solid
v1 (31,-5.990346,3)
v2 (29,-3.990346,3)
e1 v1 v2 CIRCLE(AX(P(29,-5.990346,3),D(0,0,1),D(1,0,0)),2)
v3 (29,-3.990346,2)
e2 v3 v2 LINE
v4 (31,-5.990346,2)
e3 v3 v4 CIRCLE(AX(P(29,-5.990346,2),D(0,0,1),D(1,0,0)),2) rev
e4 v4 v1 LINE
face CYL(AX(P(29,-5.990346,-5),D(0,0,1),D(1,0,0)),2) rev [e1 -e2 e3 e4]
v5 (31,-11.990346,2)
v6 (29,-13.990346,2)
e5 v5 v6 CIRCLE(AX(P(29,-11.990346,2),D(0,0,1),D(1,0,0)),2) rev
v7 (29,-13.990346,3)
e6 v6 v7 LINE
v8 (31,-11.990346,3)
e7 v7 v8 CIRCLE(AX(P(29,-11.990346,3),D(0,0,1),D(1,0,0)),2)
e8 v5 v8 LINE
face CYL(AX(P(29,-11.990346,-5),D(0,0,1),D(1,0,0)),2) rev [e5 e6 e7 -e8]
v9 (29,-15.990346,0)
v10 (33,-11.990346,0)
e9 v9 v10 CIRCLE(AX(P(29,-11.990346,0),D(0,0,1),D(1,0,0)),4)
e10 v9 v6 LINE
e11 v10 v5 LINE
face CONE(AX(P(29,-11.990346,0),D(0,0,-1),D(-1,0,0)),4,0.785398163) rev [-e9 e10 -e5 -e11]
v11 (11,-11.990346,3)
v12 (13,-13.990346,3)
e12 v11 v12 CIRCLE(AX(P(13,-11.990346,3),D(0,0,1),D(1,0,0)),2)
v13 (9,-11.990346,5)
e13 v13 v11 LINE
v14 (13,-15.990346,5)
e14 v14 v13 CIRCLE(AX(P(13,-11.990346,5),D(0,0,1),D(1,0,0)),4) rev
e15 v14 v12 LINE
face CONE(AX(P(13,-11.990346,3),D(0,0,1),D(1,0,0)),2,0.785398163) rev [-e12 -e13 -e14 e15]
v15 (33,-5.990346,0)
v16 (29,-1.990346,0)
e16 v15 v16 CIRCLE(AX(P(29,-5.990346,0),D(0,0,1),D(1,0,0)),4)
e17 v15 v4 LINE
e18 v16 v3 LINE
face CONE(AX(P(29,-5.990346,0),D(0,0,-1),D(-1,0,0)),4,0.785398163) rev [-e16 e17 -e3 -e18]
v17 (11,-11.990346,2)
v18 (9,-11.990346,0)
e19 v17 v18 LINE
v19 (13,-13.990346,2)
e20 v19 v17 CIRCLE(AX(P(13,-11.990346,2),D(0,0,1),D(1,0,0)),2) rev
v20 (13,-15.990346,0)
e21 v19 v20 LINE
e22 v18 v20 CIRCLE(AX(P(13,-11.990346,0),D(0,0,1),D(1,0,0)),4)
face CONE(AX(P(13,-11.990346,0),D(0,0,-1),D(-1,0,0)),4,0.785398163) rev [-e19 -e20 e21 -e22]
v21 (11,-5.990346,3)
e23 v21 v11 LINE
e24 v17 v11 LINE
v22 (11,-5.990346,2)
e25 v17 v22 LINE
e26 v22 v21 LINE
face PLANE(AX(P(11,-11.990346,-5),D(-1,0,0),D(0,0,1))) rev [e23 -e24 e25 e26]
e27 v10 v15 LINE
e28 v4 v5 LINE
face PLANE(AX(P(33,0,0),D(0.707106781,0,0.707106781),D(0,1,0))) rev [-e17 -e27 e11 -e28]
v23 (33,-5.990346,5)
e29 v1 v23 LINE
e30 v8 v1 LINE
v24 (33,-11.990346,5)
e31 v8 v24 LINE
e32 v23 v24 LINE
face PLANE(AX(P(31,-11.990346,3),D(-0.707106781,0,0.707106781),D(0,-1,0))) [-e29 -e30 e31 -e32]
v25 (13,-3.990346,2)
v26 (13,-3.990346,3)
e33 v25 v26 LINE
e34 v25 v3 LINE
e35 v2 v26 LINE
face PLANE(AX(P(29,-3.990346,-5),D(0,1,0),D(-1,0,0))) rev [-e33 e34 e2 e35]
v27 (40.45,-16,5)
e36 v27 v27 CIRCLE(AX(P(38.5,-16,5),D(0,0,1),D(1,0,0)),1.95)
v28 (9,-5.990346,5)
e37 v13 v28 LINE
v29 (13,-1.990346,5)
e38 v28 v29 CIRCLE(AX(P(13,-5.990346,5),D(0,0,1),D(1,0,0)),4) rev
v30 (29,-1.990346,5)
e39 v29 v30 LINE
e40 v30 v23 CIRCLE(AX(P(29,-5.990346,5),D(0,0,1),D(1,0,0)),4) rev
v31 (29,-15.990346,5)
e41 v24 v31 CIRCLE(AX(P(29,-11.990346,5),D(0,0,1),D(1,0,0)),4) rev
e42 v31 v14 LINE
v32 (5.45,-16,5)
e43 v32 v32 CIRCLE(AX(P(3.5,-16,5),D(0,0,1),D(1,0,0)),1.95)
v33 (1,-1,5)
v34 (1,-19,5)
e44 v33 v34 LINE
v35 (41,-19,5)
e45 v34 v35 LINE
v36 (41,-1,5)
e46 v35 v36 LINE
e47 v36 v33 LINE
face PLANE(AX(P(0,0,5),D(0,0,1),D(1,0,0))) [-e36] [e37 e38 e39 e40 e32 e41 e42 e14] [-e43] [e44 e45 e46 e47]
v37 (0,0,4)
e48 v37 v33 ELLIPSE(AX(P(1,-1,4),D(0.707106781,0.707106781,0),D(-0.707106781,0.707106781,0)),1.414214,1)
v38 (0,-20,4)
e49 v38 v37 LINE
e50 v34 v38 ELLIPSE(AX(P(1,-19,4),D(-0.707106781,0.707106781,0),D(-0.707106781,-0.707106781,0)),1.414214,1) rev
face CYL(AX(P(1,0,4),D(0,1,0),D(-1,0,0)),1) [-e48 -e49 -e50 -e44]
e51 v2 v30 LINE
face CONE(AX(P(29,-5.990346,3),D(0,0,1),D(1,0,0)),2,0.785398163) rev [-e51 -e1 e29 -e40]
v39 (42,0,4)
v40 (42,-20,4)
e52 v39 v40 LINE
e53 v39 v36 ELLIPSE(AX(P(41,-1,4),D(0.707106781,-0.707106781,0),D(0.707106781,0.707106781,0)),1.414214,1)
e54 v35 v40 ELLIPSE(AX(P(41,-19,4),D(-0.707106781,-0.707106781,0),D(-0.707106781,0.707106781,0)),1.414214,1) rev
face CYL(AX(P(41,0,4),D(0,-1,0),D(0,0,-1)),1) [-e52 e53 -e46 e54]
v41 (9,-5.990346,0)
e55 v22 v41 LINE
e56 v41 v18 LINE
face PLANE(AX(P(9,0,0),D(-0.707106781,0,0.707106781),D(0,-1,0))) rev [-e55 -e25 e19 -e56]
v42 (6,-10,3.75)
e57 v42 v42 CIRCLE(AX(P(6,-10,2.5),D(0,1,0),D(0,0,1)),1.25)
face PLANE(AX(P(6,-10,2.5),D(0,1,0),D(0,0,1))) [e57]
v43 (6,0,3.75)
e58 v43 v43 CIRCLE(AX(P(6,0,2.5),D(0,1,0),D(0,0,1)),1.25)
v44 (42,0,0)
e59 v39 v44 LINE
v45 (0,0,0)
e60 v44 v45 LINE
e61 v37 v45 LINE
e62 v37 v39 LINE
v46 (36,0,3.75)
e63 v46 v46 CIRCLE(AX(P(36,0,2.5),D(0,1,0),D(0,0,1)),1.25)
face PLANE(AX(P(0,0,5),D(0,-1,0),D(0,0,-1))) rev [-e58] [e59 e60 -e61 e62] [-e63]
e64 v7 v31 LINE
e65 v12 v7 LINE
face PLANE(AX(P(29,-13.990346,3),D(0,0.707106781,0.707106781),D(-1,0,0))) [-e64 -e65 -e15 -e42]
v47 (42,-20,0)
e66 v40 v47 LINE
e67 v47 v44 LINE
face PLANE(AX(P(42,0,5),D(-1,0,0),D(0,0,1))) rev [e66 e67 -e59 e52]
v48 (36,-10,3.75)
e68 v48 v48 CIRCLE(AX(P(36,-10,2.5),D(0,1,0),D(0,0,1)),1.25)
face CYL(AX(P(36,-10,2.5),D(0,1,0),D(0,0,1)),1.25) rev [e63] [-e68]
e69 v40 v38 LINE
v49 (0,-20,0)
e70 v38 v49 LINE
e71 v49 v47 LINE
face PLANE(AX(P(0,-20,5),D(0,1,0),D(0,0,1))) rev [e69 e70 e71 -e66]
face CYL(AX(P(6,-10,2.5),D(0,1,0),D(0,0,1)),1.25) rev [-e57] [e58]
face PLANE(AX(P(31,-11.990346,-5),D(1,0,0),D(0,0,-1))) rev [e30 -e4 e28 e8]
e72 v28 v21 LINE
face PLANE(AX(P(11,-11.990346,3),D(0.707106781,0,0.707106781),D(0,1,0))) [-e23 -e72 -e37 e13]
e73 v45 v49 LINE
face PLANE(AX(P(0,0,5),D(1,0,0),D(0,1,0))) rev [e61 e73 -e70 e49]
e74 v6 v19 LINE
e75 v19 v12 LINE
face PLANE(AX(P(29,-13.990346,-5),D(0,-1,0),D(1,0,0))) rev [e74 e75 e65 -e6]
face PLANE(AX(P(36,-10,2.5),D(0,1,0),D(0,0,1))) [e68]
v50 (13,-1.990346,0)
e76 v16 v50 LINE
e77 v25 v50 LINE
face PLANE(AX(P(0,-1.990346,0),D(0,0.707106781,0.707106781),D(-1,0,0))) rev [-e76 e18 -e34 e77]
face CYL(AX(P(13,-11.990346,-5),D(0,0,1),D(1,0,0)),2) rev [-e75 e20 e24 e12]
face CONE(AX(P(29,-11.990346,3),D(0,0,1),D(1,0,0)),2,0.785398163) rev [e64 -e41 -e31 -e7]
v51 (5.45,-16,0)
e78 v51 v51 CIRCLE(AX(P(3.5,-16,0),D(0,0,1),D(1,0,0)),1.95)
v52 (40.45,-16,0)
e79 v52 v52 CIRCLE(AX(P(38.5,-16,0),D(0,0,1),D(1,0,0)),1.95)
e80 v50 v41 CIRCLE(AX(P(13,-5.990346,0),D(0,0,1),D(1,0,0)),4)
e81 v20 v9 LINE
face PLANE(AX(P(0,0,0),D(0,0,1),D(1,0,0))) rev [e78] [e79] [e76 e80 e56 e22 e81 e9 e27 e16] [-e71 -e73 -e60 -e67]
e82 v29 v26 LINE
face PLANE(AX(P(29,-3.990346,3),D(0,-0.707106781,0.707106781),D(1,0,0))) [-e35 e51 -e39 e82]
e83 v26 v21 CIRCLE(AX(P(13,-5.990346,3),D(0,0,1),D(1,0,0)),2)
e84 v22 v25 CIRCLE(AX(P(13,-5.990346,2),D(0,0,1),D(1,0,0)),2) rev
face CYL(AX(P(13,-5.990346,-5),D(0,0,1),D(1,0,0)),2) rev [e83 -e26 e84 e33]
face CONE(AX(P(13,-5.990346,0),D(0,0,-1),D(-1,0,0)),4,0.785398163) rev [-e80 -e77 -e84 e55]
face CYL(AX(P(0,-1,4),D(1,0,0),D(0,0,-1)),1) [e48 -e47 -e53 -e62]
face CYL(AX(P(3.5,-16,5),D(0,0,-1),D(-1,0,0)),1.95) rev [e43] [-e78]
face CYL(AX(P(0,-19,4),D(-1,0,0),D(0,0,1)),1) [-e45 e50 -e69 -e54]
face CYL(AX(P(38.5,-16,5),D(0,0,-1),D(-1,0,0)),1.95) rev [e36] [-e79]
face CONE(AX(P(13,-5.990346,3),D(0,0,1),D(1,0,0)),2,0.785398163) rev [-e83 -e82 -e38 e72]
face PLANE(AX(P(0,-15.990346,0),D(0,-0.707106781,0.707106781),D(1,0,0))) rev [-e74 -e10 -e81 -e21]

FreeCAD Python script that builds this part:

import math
import FreeCAD as App
import Part
import Sketcher

V = App.Vector


def edges_at(feature, points):
    """Names of the edges that pass closest to the given points."""
    edges = feature.Shape.Edges
    near = lambda p: min(range(len(edges)), key=lambda i: edges[i].distToShape(Part.Vertex(*p))[0])
    return sorted({f"Edge{near(p) + 1}" for p in points})


def add_polygon(sketch, points):
    """Adds a closed chain of lines whose ends are joined by coincident constraints."""
    first, n = sketch.GeometryCount, len(points)
    for a, b in zip(points, points[1:] + points[:1]):
        sketch.addGeometry(Part.LineSegment(App.Vector(*a, 0), App.Vector(*b, 0)), False)
    for i in range(n):
        sketch.addConstraint(Sketcher.Constraint("Coincident", first + i, 2, first + (i + 1) % n, 1))

doc = App.newDocument("Part")
body = doc.addObject("PartDesign::Body", "Body")

# Sketch on XY plane
sketch1 = body.newObject("Sketcher::SketchObject", "Sketch")
sketch1.AttachmentSupport = (doc.getObject("XY_Plane"), [""])
sketch1.MapMode = "FlatFace"
add_polygon(sketch1, [(0, 0), (0, -20), (42, -20), (42, 0)])  # lines 0-3
sketch1.addGeometry(Part.Circle(V(3.5, -16, 0), V(0, 0, 1), 1.9), False)  # 4
sketch1.addGeometry(Part.Circle(V(38.5, -16, 0), V(0, 0, 1), 1.9), False)  # 5
sketch1.addConstraint([
    Sketcher.Constraint("Vertical", 0),
    Sketcher.Constraint("Horizontal", 1),
    Sketcher.Constraint("Vertical", 2),
    Sketcher.Constraint("Horizontal", 3),
    Sketcher.Constraint("Coincident", 3, 2, -1, 1),
    Sketcher.Constraint("Equal", 4, 5),
    Sketcher.Constraint("Horizontal", 4, 3, 5, 3),
    Sketcher.Constraint("Diameter", 4, 3.9),
    Sketcher.Constraint("DistanceX", 1, 1, 1, 2, 42.0),
    Sketcher.Constraint("DistanceY", 0, 2, 0, 1, 20.0),
    Sketcher.Constraint("DistanceY", 4, 3, -1, 1, 16.0),
    Sketcher.Constraint("DistanceX", 4, 3, 5, 3, 35.0),
    Sketcher.Constraint("DistanceX", -1, 1, 4, 3, 3.5),
])
pad1 = body.newObject("PartDesign::Pad", "Pad")
pad1.Profile = sketch1
pad1.Length = 5

# Sketch on XZ plane
sketch2 = body.newObject("Sketcher::SketchObject", "Sketch001")
sketch2.AttachmentSupport = (doc.getObject("XZ_Plane"), [""])
sketch2.MapMode = "FlatFace"
sketch2.addGeometry([
    Part.Circle(V(36, 2.5, 0), V(0, 0, 1), 1.2),
    Part.Circle(V(6, 2.5, 0), V(0, 0, 1), 1.2),
], False)
sketch2.addConstraint([
    Sketcher.Constraint("Equal", 0, 1),
    Sketcher.Constraint("Horizontal", 0, 3, 1, 3),
    Sketcher.Constraint("Diameter", 0, 2.5),
    Sketcher.Constraint("DistanceX", -1, 1, 0, 3, 36.0),
    Sketcher.Constraint("DistanceX", -1, 1, 1, 3, 6.0),
    Sketcher.Constraint("DistanceY", -1, 1, 0, 3, 2.5),
])
pocket1 = body.newObject("PartDesign::Pocket", "Pocket")
pocket1.Profile = sketch2
pocket1.Length = 10
pocket1.Reversed = True

# Sketch on XY plane
sketch3 = body.newObject("Sketcher::SketchObject", "Sketch002")
sketch3.AttachmentSupport = (doc.getObject("XY_Plane"), [""])
sketch3.MapMode = "FlatFace"
sketch3.AttachmentOffset = App.Placement(V(0, 0, 5), App.Rotation())
sketch3.addGeometry([
    Part.LineSegment(V(13, -14, 0), V(29, -14, 0)),  # 0
    Part.ArcOfCircle(Part.Circle(V(29, -12, 0), V(0, 0, 1), 2), math.radians(-90), math.radians(0)),  # 1
    Part.LineSegment(V(31, -12, 0), V(31, -6, 0)),  # 2
    Part.ArcOfCircle(Part.Circle(V(29, -6, 0), V(0, 0, 1), 2), math.radians(0), math.radians(90)),  # 3
    Part.LineSegment(V(29, -4, 0), V(13, -4, 0)),  # 4
    Part.ArcOfCircle(Part.Circle(V(13, -6, 0), V(0, 0, 1), 2), math.radians(90), math.radians(180)),  # 5
    Part.LineSegment(V(11, -6, 0), V(11, -12, 0)),  # 6
    Part.ArcOfCircle(Part.Circle(V(13, -12, 0), V(0, 0, 1), 2), math.radians(180), math.radians(270)),  # 7
], False)
sketch3.addConstraint([
    Sketcher.Constraint("Tangent", 0, 2, 1, 1),
    Sketcher.Constraint("Tangent", 1, 2, 2, 1),
    Sketcher.Constraint("Tangent", 2, 2, 3, 1),
    Sketcher.Constraint("Tangent", 3, 2, 4, 1),
    Sketcher.Constraint("Tangent", 4, 2, 5, 1),
    Sketcher.Constraint("Tangent", 5, 2, 6, 1),
    Sketcher.Constraint("Tangent", 6, 2, 7, 1),
    Sketcher.Constraint("Tangent", 7, 2, 0, 1),
    Sketcher.Constraint("Horizontal", 0),
    Sketcher.Constraint("Vertical", 2),
    Sketcher.Constraint("Horizontal", 4),
    Sketcher.Constraint("Vertical", 6),
    Sketcher.Constraint("Equal", 1, 3),
    Sketcher.Constraint("Equal", 3, 5),
    Sketcher.Constraint("Equal", 5, 7),
    Sketcher.Constraint("Radius", 1, 2.0),
    Sketcher.Constraint("DistanceX", 0, 1, 0, 2, 16.0),
    Sketcher.Constraint("DistanceY", 2, 1, 2, 2, 6.0),
    Sketcher.Constraint("DistanceX", -1, 1, 1, 3, 29.0),
    Sketcher.Constraint("DistanceY", 1, 3, -1, 1, 11.990346),
])
pocket2 = body.newObject("PartDesign::Pocket", "Pocket001")
pocket2.Profile = sketch3
pocket2.Length = 10
doc.recompute()

fillet = body.newObject("PartDesign::Fillet", "Fillet")
fillet.Base = (pocket2, edges_at(pocket2, [
    (42, -10, 5),
    (21, 0, 5),
    (0, -10, 5),
    (21, -20, 5),
]))
fillet.Radius = 1
doc.recompute()

chamfer = body.newObject("PartDesign::Chamfer", "Chamfer")
chamfer.Base = (fillet, edges_at(fillet, [
    (21, -13.99, 0),
    (30.414, -13.405, 0),
    (31, -8.99, 0),
    (30.414, -4.576, 0),
    (21, -3.99, 0),
    (11.586, -4.576, 0),
    (11, -8.99, 0),
    (11.586, -13.405, 0),
    (11.586, -13.405, 5),
    (21, -13.99, 5),
    (30.414, -13.405, 5),
    (31, -8.99, 5),
    (30.414, -4.576, 5),
    (21, -3.99, 5),
    (11.586, -4.576, 5),
    (11, -8.99, 5),
]))
chamfer.Size = 2

doc.recompute()
